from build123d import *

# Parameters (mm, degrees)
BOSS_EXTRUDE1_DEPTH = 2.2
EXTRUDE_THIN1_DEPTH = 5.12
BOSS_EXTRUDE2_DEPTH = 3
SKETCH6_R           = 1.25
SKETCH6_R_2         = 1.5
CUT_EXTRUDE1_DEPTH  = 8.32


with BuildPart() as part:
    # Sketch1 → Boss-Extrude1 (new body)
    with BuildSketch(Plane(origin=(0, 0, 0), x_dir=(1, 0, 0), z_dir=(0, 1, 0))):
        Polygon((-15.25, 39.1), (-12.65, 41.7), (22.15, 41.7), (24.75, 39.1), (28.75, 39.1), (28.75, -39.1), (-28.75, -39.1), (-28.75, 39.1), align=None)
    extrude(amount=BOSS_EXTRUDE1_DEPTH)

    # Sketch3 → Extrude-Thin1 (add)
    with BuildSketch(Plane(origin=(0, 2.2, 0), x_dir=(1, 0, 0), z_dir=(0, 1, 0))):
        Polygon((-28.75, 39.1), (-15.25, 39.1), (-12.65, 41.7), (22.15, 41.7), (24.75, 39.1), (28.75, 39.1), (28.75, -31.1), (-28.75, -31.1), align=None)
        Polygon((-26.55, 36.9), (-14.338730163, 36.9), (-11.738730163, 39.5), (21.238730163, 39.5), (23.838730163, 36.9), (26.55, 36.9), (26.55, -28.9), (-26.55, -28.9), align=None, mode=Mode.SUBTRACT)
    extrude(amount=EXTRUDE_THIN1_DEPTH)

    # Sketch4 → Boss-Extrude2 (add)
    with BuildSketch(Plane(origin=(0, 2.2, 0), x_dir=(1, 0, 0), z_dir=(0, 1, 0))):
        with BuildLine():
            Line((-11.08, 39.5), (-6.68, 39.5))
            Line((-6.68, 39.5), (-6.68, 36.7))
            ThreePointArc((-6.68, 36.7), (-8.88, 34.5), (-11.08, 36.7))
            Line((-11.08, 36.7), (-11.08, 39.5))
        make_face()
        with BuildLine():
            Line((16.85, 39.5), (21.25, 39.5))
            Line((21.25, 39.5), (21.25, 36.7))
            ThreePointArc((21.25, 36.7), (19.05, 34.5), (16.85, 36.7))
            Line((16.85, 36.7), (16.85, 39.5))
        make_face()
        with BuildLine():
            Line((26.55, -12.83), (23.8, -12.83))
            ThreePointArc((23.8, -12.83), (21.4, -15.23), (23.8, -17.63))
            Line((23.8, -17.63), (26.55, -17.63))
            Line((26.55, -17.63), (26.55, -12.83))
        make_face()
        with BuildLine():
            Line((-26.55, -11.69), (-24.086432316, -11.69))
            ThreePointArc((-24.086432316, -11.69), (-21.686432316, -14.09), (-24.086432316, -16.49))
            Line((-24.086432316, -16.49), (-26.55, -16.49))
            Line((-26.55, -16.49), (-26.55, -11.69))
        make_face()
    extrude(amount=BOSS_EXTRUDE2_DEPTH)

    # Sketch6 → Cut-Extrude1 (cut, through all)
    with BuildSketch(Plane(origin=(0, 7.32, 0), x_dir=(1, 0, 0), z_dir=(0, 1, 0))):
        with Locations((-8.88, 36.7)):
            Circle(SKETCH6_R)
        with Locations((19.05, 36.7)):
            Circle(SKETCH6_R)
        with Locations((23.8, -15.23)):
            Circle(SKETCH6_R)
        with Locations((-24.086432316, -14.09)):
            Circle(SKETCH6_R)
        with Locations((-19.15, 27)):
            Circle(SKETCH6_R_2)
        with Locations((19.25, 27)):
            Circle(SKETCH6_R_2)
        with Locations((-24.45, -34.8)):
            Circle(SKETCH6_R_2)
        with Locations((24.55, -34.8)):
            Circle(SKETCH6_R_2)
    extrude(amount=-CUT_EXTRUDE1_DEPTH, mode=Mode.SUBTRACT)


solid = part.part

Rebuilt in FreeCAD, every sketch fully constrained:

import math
import FreeCAD as App
import Part
import Sketcher
from FreeCAD import Vector

doc = App.newDocument("Part")
body = doc.addObject("PartDesign::Body", "Body")

# Sketch on XZ plane
sketch1 = body.newObject("Sketcher::SketchObject", "Sketch")
sketch1.AttachmentSupport = (doc.getObject("XZ_Plane"), [""])
sketch1.MapMode = "FlatFace"
sketch1.addGeometry(Part.LineSegment(Vector(-12.7, -41.7, 0), Vector(-15.2, -39.1, 0)), False)
sketch1.addGeometry(Part.LineSegment(Vector(-15.2, -39.1, 0), Vector(-28.8, -39.1, 0)), False)
sketch1.addGeometry(Part.LineSegment(Vector(-28.8, -39.1, 0), Vector(-28.8, 39.1, 0)), False)
sketch1.addGeometry(Part.LineSegment(Vector(-28.8, 39.1, 0), Vector(28.8, 39.1, 0)), False)
sketch1.addGeometry(Part.LineSegment(Vector(28.8, 39.1, 0), Vector(28.8, -39.1, 0)), False)
sketch1.addGeometry(Part.LineSegment(Vector(28.8, -39.1, 0), Vector(24.8, -39.1, 0)), False)
sketch1.addGeometry(Part.LineSegment(Vector(24.8, -39.1, 0), Vector(22.1, -41.7, 0)), False)
sketch1.addGeometry(Part.LineSegment(Vector(22.1, -41.7, 0), Vector(-12.7, -41.7, 0)), False)
sketch1.addConstraint(Sketcher.Constraint("Coincident", 0, 2, 1, 1))
sketch1.addConstraint(Sketcher.Constraint("Coincident", 1, 2, 2, 1))
sketch1.addConstraint(Sketcher.Constraint("Coincident", 2, 2, 3, 1))
sketch1.addConstraint(Sketcher.Constraint("Coincident", 3, 2, 4, 1))
sketch1.addConstraint(Sketcher.Constraint("Coincident", 4, 2, 5, 1))
sketch1.addConstraint(Sketcher.Constraint("Coincident", 5, 2, 6, 1))
sketch1.addConstraint(Sketcher.Constraint("Coincident", 6, 2, 7, 1))
sketch1.addConstraint(Sketcher.Constraint("Coincident", 7, 2, 0, 1))
sketch1.addConstraint(Sketcher.Constraint("Horizontal", 1))
sketch1.addConstraint(Sketcher.Constraint("Vertical", 2))
sketch1.addConstraint(Sketcher.Constraint("Horizontal", 3))
sketch1.addConstraint(Sketcher.Constraint("Vertical", 4))
sketch1.addConstraint(Sketcher.Constraint("Horizontal", 5))
sketch1.addConstraint(Sketcher.Constraint("Horizontal", 7))
sketch1.addConstraint(Sketcher.Constraint("Symmetric", 1, 2, 3, 2, -1, 1))
sketch1.addConstraint(Sketcher.Constraint("Perpendicular", 0, 6))
sketch1.addConstraint(Sketcher.Constraint("Horizontal", 1, 2, 4, 2))
sketch1.addConstraint(Sketcher.Constraint("Equal", 0, 6))
sketch1.addConstraint(Sketcher.Constraint("DistanceX", 5, 2, 5, 1, 4.0))
sketch1.addConstraint(Sketcher.Constraint("DistanceX", 1, 2, 1, 1, 13.5))
sketch1.addConstraint(Sketcher.Constraint("DistanceX", 3, 1, 3, 2, 57.5))
sketch1.addConstraint(Sketcher.Constraint("DistanceX", 7, 2, 7, 1, 34.8))
sketch1.addConstraint(Sketcher.Constraint("DistanceY", 2, 1, 2, 2, 78.2))
pad1 = body.newObject("PartDesign::Pad", "Pad")
pad1.Profile = sketch1
pad1.Length = 2.2
pad1.Reversed = True

# Sketch on XZ plane
sketch2 = body.newObject("Sketcher::SketchObject", "Sketch001")
sketch2.AttachmentSupport = (doc.getObject("XZ_Plane"), [""])
sketch2.MapMode = "FlatFace"
sketch2.AttachmentOffset = App.Placement(Vector(0, 0, -2.2), App.Rotation())
sketch2.addGeometry(Part.LineSegment(Vector(-15.2, -39.1, 0), Vector(-28.8, -39.1, 0)), False)
sketch2.addGeometry(Part.LineSegment(Vector(-28.8, -39.1, 0), Vector(-28.8, 31.1, 0)), False)
sketch2.addGeometry(Part.LineSegment(Vector(-28.8, 31.1, 0), Vector(28.8, 31.1, 0)), False)
sketch2.addGeometry(Part.LineSegment(Vector(28.8, 31.1, 0), Vector(28.8, -39.1, 0)), False)
sketch2.addGeometry(Part.LineSegment(Vector(28.8, -39.1, 0), Vector(24.8, -39.1, 0)), False)
sketch2.addGeometry(Part.LineSegment(Vector(24.8, -39.1, 0), Vector(22.1, -41.7, 0)), False)
sketch2.addGeometry(Part.LineSegment(Vector(22.1, -41.7, 0), Vector(-12.7, -41.7, 0)), False)
sketch2.addGeometry(Part.LineSegment(Vector(-12.7, -41.7, 0), Vector(-15.2, -39.1, 0)), False)
sketch2.addGeometry(Part.LineSegment(Vector(-26.6, -36.9, 0), Vector(-14.3, -36.9, 0)), False)
sketch2.addGeometry(Part.LineSegment(Vector(-14.3, -36.9, 0), Vector(-11.7, -39.5, 0)), False)
sketch2.addGeometry(Part.LineSegment(Vector(-11.7, -39.5, 0), Vector(21.2, -39.5, 0)), False)
sketch2.addGeometry(Part.LineSegment(Vector(21.2, -39.5, 0), Vector(23.8, -36.9, 0)), False)
sketch2.addGeometry(Part.LineSegment(Vector(23.8, -36.9, 0), Vector(26.6, -36.9, 0)), False)
sketch2.addGeometry(Part.LineSegment(Vector(26.6, -36.9, 0), Vector(26.6, 28.9, 0)), False)
sketch2.addGeometry(Part.LineSegment(Vector(26.6, 28.9, 0), Vector(-26.6, 28.9, 0)), False)
sketch2.addGeometry(Part.LineSegment(Vector(-26.6, 28.9, 0), Vector(-26.6, -36.9, 0)), False)
sketch2.addConstraint(Sketcher.Constraint("Coincident", 0, 2, 1, 1))
sketch2.addConstraint(Sketcher.Constraint("Coincident", 1, 2, 2, 1))
sketch2.addConstraint(Sketcher.Constraint("Coincident", 2, 2, 3, 1))
sketch2.addConstraint(Sketcher.Constraint("Coincident", 3, 2, 4, 1))
sketch2.addConstraint(Sketcher.Constraint("Coincident", 4, 2, 5, 1))
sketch2.addConstraint(Sketcher.Constraint("Coincident", 5, 2, 6, 1))
sketch2.addConstraint(Sketcher.Constraint("Coincident", 6, 2, 7, 1))
sketch2.addConstraint(Sketcher.Constraint("Coincident", 7, 2, 0, 1))
sketch2.addConstraint(Sketcher.Constraint("Coincident", 8, 2, 9, 1))
sketch2.addConstraint(Sketcher.Constraint("Coincident", 9, 2, 10, 1))
sketch2.addConstraint(Sketcher.Constraint("Coincident", 10, 2, 11, 1))
sketch2.addConstraint(Sketcher.Constraint("Coincident", 11, 2, 12, 1))
sketch2.addConstraint(Sketcher.Constraint("Coincident", 12, 2, 13, 1))
sketch2.addConstraint(Sketcher.Constraint("Coincident", 13, 2, 14, 1))
sketch2.addConstraint(Sketcher.Constraint("Coincident", 14, 2, 15, 1))
sketch2.addConstraint(Sketcher.Constraint("Coincident", 15, 2, 8, 1))
sketch2.addConstraint(Sketcher.Constraint("Horizontal", 0))
sketch2.addConstraint(Sketcher.Constraint("Vertical", 1))
sketch2.addConstraint(Sketcher.Constraint("Horizontal", 2))
sketch2.addConstraint(Sketcher.Constraint("Vertical", 3))
sketch2.addConstraint(Sketcher.Constraint("Horizontal", 4))
sketch2.addConstraint(Sketcher.Constraint("Horizontal", 6))
sketch2.addConstraint(Sketcher.Constraint("Horizontal", 8))
sketch2.addConstraint(Sketcher.Constraint("Horizontal", 10))
sketch2.addConstraint(Sketcher.Constraint("Horizontal", 12))
sketch2.addConstraint(Sketcher.Constraint("Vertical", 13))
sketch2.addConstraint(Sketcher.Constraint("Horizontal", 14))
sketch2.addConstraint(Sketcher.Constraint("Vertical", 15))
sketch2.addConstraint(Sketcher.Constraint("Symmetric", 0, 2, 3, 2, -2))
sketch2.addConstraint(Sketcher.Constraint("Symmetric", 12, 2, 15, 2, -2))
sketch2.addConstraint(Sketcher.Constraint("Perpendicular", 5, 7))
sketch2.addConstraint(Sketcher.Constraint("Parallel", 7, 9))
sketch2.addConstraint(Sketcher.Constraint("Perpendicular", 9, 11))
sketch2.addConstraint(Sketcher.Constraint("Equal", 5, 7))
sketch2.addConstraint(Sketcher.Constraint("Equal", 7, 9))
sketch2.addConstraint(Sketcher.Constraint("DistanceX", 4, 2, 4, 1, 4.0))
sketch2.addConstraint(Sketcher.Constraint("DistanceX", 0, 2, 0, 1, 13.5))
sketch2.addConstraint(Sketcher.Constraint("DistanceX", 2, 1, 2, 2, 57.5))
sketch2.addConstraint(Sketcher.Constraint("DistanceX", 6, 2, 6, 1, 34.8))
sketch2.addConstraint(Sketcher.Constraint("DistanceX", 14, 2, 14, 1, 53.1))
sketch2.addConstraint(Sketcher.Constraint("DistanceY", 1, 1, 1, 2, 70.2))
sketch2.addConstraint(Sketcher.Constraint("DistanceY", 13, 1, 13, 2, 65.8))
sketch2.addConstraint(Sketcher.Constraint("DistanceY", 4, 2, 13, 2, 68.0))
sketch2.addConstraint(Sketcher.Constraint("DistanceY", 0, 2, -1, 1, 39.1))
sketch2.addConstraint(Sketcher.Constraint("DistanceX", 8, 1, 8, 2, 12.21127))
sketch2.addConstraint(Sketcher.Constraint("DistanceX", 10, 1, 10, 2, 32.97746))
pad2 = body.newObject("PartDesign::Pad", "Pad001")
pad2.Profile = sketch2
pad2.Length = 5.12
pad2.Reversed = True

# Sketch on XZ plane
sketch3 = body.newObject("Sketcher::SketchObject", "Sketch002")
sketch3.AttachmentSupport = (doc.getObject("XZ_Plane"), [""])
sketch3.MapMode = "FlatFace"
sketch3.AttachmentOffset = App.Placement(Vector(0, 0, -2.2), App.Rotation())
sketch3.addGeometry(Part.LineSegment(Vector(-6.7, -39.5, 0), Vector(-11.1, -39.5, 0)), False)
sketch3.addGeometry(Part.LineSegment(Vector(-11.1, -39.5, 0), Vector(-11.1, -36.7, 0)), False)
sketch3.addGeometry(Part.ArcOfCircle(Part.Circle(Vector(-8.9, -36.7, 0), Vector(0, 0, 1), 2.2), math.radians(0), math.radians(180)), False)
sketch3.addGeometry(Part.LineSegment(Vector(-6.7, -36.7, 0), Vector(-6.7, -39.5, 0)), False)
sketch3.addGeometry(Part.LineSegment(Vector(21.2, -39.5, 0), Vector(16.9, -39.5, 0)), False)
sketch3.addGeometry(Part.LineSegment(Vector(16.9, -39.5, 0), Vector(16.9, -36.7, 0)), False)
sketch3.addGeometry(Part.ArcOfCircle(Part.Circle(Vector(19.1, -36.7, 0), Vector(0, 0, 1), 2.2), math.radians(0), math.radians(180)), False)
sketch3.addGeometry(Part.LineSegment(Vector(21.2, -36.7, 0), Vector(21.2, -39.5, 0)), False)
sketch3.addGeometry(Part.LineSegment(Vector(26.6, 12.8, 0), Vector(23.8, 12.8, 0)), False)
sketch3.addGeometry(Part.ArcOfCircle(Part.Circle(Vector(23.8, 15.2, 0), Vector(0, 0, 1), 2.4), math.radians(90), math.radians(270)), False)
sketch3.addGeometry(Part.LineSegment(Vector(23.8, 17.6, 0), Vector(26.6, 17.6, 0)), False)
sketch3.addGeometry(Part.LineSegment(Vector(26.6, 17.6, 0), Vector(26.6, 12.8, 0)), False)
sketch3.addGeometry(Part.LineSegment(Vector(-24.1, 11.7, 0), Vector(-26.6, 11.7, 0)), False)
sketch3.addGeometry(Part.LineSegment(Vector(-26.6, 11.7, 0), Vector(-26.6, 16.5, 0)), False)
sketch3.addGeometry(Part.LineSegment(Vector(-26.6, 16.5, 0), Vector(-24.1, 16.5, 0)), False)
sketch3.addGeometry(Part.ArcOfCircle(Part.Circle(Vector(-24.1, 14.1, 0), Vector(0, 0, 1), 2.4), math.radians(-90), math.radians(90)), False)
sketch3.addConstraint(Sketcher.Constraint("Coincident", 0, 2, 1, 1))
sketch3.addConstraint(Sketcher.Constraint("Tangent", 1, 2, 2, 2))
sketch3.addConstraint(Sketcher.Constraint("Tangent", 2, 1, 3, 1))
sketch3.addConstraint(Sketcher.Constraint("Coincident", 3, 2, 0, 1))
sketch3.addConstraint(Sketcher.Constraint("Coincident", 4, 2, 5, 1))
sketch3.addConstraint(Sketcher.Constraint("Tangent", 5, 2, 6, 2))
sketch3.addConstraint(Sketcher.Constraint("Tangent", 6, 1, 7, 1))
sketch3.addConstraint(Sketcher.Constraint("Coincident", 7, 2, 4, 1))
sketch3.addConstraint(Sketcher.Constraint("Tangent", 8, 2, 9, 2))
sketch3.addConstraint(Sketcher.Constraint("Tangent", 9, 1, 10, 1))
sketch3.addConstraint(Sketcher.Constraint("Coincident", 10, 2, 11, 1))
sketch3.addConstraint(Sketcher.Constraint("Coincident", 11, 2, 8, 1))
sketch3.addConstraint(Sketcher.Constraint("Coincident", 12, 2, 13, 1))
sketch3.addConstraint(Sketcher.Constraint("Coincident", 13, 2, 14, 1))
sketch3.addConstraint(Sketcher.Constraint("Tangent", 14, 2, 15, 2))
sketch3.addConstraint(Sketcher.Constraint("Tangent", 15, 1, 12, 1))
sketch3.addConstraint(Sketcher.Constraint("Horizontal", 0))
sketch3.addConstraint(Sketcher.Constraint("Vertical", 1))
sketch3.addConstraint(Sketcher.Constraint("Vertical", 3))
sketch3.addConstraint(Sketcher.Constraint("Horizontal", 4))
sketch3.addConstraint(Sketcher.Constraint("Vertical", 5))
sketch3.addConstraint(Sketcher.Constraint("Vertical", 7))
sketch3.addConstraint(Sketcher.Constraint("Horizontal", 8))
sketch3.addConstraint(Sketcher.Constraint("Horizontal", 10))
sketch3.addConstraint(Sketcher.Constraint("Vertical", 11))
sketch3.addConstraint(Sketcher.Constraint("Horizontal", 12))
sketch3.addConstraint(Sketcher.Constraint("Vertical", 13))
sketch3.addConstraint(Sketcher.Constraint("Horizontal", 14))
sketch3.addConstraint(Sketcher.Constraint("Equal", 2, 6))
sketch3.addConstraint(Sketcher.Constraint("Equal", 9, 15))
sketch3.addConstraint(Sketcher.Constraint("Horizontal", 2, 3, 6, 3))
sketch3.addConstraint(Sketcher.Constraint("Horizontal", 3, 2, 4, 2))
sketch3.addConstraint(Sketcher.Constraint("Radius", 2, 2.2))
sketch3.addConstraint(Sketcher.Constraint("Radius", 9, 2.4))
sketch3.addConstraint(Sketcher.Constraint("DistanceY", 1, 1, 1, 2, 2.8))
sketch3.addConstraint(Sketcher.Constraint("DistanceX", 8, 2, 8, 1, 2.75))
sketch3.addConstraint(Sketcher.Constraint("DistanceY", 2, 3, -1, 1, 36.7))
sketch3.addConstraint(Sketcher.Constraint("DistanceX", -1, 1, 9, 3, 23.8))
sketch3.addConstraint(Sketcher.Constraint("DistanceX", 6, 1, 10, 2, 5.3))
sketch3.addConstraint(Sketcher.Constraint("DistanceX", 2, 3, -1, 1, 8.88))
sketch3.addConstraint(Sketcher.Constraint("DistanceY", -1, 1, 9, 3, 15.23))
sketch3.addConstraint(Sketcher.Constraint("DistanceY", -1, 1, 15, 3, 14.09))
sketch3.addConstraint(Sketcher.Constraint("DistanceX", 12, 2, -1, 1, 26.55))
sketch3.addConstraint(Sketcher.Constraint("DistanceX", 12, 2, 12, 1, 2.463568))
pad3 = body.newObject("PartDesign::Pad", "Pad002")
pad3.Profile = sketch3
pad3.Length = 3
pad3.Reversed = True

# Sketch on XZ plane
sketch4 = body.newObject("Sketcher::SketchObject", "Sketch003")
sketch4.AttachmentSupport = (doc.getObject("XZ_Plane"), [""])
sketch4.MapMode = "FlatFace"
sketch4.AttachmentOffset = App.Placement(Vector(0, 0, -7.32), App.Rotation())
sketch4.addGeometry(Part.Circle(Vector(-8.9, -36.7, 0), Vector(0, 0, 1), 1.2), False)
sketch4.addGeometry(Part.Circle(Vector(19.1, -36.7, 0), Vector(0, 0, 1), 1.2), False)
sketch4.addGeometry(Part.Circle(Vector(23.8, 15.2, 0), Vector(0, 0, 1), 1.2), False)
sketch4.addGeometry(Part.Circle(Vector(-24.1, 14.1, 0), Vector(0, 0, 1), 1.2), False)
sketch4.addGeometry(Part.Circle(Vector(-19.1, -27, 0), Vector(0, 0, 1), 1.5), False)
sketch4.addGeometry(Part.Circle(Vector(19.2, -27, 0), Vector(0, 0, 1), 1.5), False)
sketch4.addGeometry(Part.Circle(Vector(-24.4, 34.8, 0), Vector(0, 0, 1), 1.5), False)
sketch4.addGeometry(Part.Circle(Vector(24.6, 34.8, 0), Vector(0, 0, 1), 1.5), False)
sketch4.addConstraint(Sketcher.Constraint("Equal", 0, 1))
sketch4.addConstraint(Sketcher.Constraint("Equal", 1, 2))
sketch4.addConstraint(Sketcher.Constraint("Equal", 2, 3))
sketch4.addConstraint(Sketcher.Constraint("Equal", 4, 5))
sketch4.addConstraint(Sketcher.Constraint("Equal", 5, 6))
sketch4.addConstraint(Sketcher.Constraint("Equal", 6, 7))
sketch4.addConstraint(Sketcher.Constraint("Horizontal", 0, 3, 1, 3))
sketch4.addConstraint(Sketcher.Constraint("Horizontal", 4, 3, 5, 3))
sketch4.addConstraint(Sketcher.Constraint("Horizontal", 6, 3, 7, 3))
sketch4.addConstraint(Sketcher.Constraint("Diameter", 4, 3.0))
sketch4.addConstraint(Sketcher.Constraint("Diameter", 0, 2.5))
sketch4.addConstraint(Sketcher.Constraint("DistanceY", 4, 3, -1, 1, 27.0))
sketch4.addConstraint(Sketcher.Constraint("DistanceX", 6, 3, 7, 3, 49.0))
sketch4.addConstraint(Sketcher.Constraint("DistanceY", 0, 3, -1, 1, 36.7))
sketch4.addConstraint(Sketcher.Constraint("DistanceX", -1, 1, 2, 3, 23.8))
sketch4.addConstraint(Sketcher.Constraint("DistanceY", -1, 1, 6, 3, 34.8))
sketch4.addConstraint(Sketcher.Constraint("DistanceX", 4, 3, 1, 3, 38.2))
sketch4.addConstraint(Sketcher.Constraint("DistanceX", 1, 3, 5, 3, 0.2))
sketch4.addConstraint(Sketcher.Constraint("DistanceX", 6, 3, 4, 3, 5.3))
sketch4.addConstraint(Sketcher.Constraint("DistanceX", 0, 3, -1, 1, 8.88))
sketch4.addConstraint(Sketcher.Constraint("DistanceX", -1, 1, 1, 3, 19.05))
sketch4.addConstraint(Sketcher.Constraint("DistanceY", -1, 1, 2, 3, 15.23))
sketch4.addConstraint(Sketcher.Constraint("DistanceY", -1, 1, 3, 3, 14.09))
sketch4.addConstraint(Sketcher.Constraint("DistanceX", 3, 3, -1, 1, 24.086432))
pocket1 = body.newObject("PartDesign::Pocket", "Pocket")
pocket1.Profile = sketch4
pocket1.Type = "ThroughAll"
pocket1.Reversed = True

doc.recompute()
